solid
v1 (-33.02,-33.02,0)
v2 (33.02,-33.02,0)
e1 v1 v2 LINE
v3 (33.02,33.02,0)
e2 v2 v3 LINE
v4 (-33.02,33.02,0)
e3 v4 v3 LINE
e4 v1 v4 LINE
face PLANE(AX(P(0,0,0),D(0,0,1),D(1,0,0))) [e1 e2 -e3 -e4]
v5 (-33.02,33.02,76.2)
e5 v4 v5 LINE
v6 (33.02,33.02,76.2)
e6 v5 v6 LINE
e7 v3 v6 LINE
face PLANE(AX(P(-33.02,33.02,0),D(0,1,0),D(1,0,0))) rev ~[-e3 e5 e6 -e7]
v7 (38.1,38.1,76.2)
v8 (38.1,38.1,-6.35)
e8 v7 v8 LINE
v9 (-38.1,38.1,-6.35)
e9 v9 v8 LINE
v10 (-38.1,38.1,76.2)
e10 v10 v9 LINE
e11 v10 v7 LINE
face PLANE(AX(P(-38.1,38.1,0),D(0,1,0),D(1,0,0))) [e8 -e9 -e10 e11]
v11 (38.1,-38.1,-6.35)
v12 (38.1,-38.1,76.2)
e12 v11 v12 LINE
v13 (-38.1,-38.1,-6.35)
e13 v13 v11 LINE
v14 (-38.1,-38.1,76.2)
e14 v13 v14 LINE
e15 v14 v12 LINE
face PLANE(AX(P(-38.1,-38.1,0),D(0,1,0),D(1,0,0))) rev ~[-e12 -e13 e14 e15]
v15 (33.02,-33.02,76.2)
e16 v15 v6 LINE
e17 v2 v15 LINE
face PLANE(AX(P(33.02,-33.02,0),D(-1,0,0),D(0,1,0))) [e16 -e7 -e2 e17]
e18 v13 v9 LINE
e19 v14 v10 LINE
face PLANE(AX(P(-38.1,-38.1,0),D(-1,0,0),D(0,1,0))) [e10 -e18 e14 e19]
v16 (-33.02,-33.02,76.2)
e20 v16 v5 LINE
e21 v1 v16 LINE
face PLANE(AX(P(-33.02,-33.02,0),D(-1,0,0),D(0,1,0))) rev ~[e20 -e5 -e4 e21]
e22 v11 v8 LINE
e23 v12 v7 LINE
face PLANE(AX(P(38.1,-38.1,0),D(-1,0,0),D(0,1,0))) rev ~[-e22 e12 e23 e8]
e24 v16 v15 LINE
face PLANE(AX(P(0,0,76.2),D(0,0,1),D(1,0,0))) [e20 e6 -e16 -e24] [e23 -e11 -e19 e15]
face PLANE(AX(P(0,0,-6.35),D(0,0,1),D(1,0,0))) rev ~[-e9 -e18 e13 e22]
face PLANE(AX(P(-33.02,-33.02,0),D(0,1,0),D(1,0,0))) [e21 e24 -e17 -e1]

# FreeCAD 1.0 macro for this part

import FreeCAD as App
import Part
import Sketcher

V = App.Vector
Q = App.Units.Quantity

doc = App.newDocument("Part")
body = doc.addObject("PartDesign::Body", "Body")

sketch1 = body.newObject("Sketcher::SketchObject", "Sketch")
sketch1.AttachmentSupport = (doc.getObject("XY_Plane"), [""])
sketch1.MapMode = "FlatFace"
sketch1.addGeometry(Part.LineSegment(V(-38, 38, 0), V(-38, -38, 0)), False)
sketch1.addGeometry(Part.LineSegment(V(-38, -38, 0), V(38, -38, 0)), False)
sketch1.addGeometry(Part.LineSegment(V(38, -38, 0), V(38, 38, 0)), False)
sketch1.addGeometry(Part.LineSegment(V(38, 38, 0), V(-38, 38, 0)), False)
sketch1.addConstraint(Sketcher.Constraint("Coincident", 0, 2, 1, 1))
sketch1.addConstraint(Sketcher.Constraint("Coincident", 1, 2, 2, 1))
sketch1.addConstraint(Sketcher.Constraint("Coincident", 2, 2, 3, 1))
sketch1.addConstraint(Sketcher.Constraint("Coincident", 3, 2, 0, 1))
sketch1.addConstraint(Sketcher.Constraint("Vertical", 0))
sketch1.addConstraint(Sketcher.Constraint("Horizontal", 1))
sketch1.addConstraint(Sketcher.Constraint("Vertical", 2))
sketch1.addConstraint(Sketcher.Constraint("Horizontal", 3))
sketch1.addConstraint(Sketcher.Constraint("Symmetric", 0, 2, 2, 2, -1, 1))
sketch1.addConstraint(Sketcher.Constraint("Equal", 3, 0))
sketch1.addConstraint(Sketcher.Constraint("DistanceX", 1, 1, 1, 2, Q("3 in")))
pad1 = body.newObject("PartDesign::Pad", "Pad")
pad1.Profile = sketch1
pad1.Length = Q("0.25 in")
pad1.Reversed = True

sketch2 = body.newObject("Sketcher::SketchObject", "Sketch001")
sketch2.AttachmentSupport = (doc.getObject("XY_Plane"), [""])
sketch2.MapMode = "FlatFace"
sketch2.addGeometry(Part.LineSegment(V(-38, 38, 0), V(-38, -38, 0)), False)
sketch2.addGeometry(Part.LineSegment(V(-38, -38, 0), V(38, -38, 0)), False)
sketch2.addGeometry(Part.LineSegment(V(38, -38, 0), V(38, 38, 0)), False)
sketch2.addGeometry(Part.LineSegment(V(38, 38, 0), V(-38, 38, 0)), False)
sketch2.addGeometry(Part.LineSegment(V(33, -33, 0), V(-33, -33, 0)), False)
sketch2.addGeometry(Part.LineSegment(V(-33, -33, 0), V(-33, 33, 0)), False)
sketch2.addGeometry(Part.LineSegment(V(-33, 33, 0), V(33, 33, 0)), False)
sketch2.addGeometry(Part.LineSegment(V(33, 33, 0), V(33, -33, 0)), False)
sketch2.addConstraint(Sketcher.Constraint("Coincident", 0, 2, 1, 1))
sketch2.addConstraint(Sketcher.Constraint("Coincident", 1, 2, 2, 1))
sketch2.addConstraint(Sketcher.Constraint("Coincident", 2, 2, 3, 1))
sketch2.addConstraint(Sketcher.Constraint("Coincident", 3, 2, 0, 1))
sketch2.addConstraint(Sketcher.Constraint("Coincident", 4, 2, 5, 1))
sketch2.addConstraint(Sketcher.Constraint("Coincident", 5, 2, 6, 1))
sketch2.addConstraint(Sketcher.Constraint("Coincident", 6, 2, 7, 1))
sketch2.addConstraint(Sketcher.Constraint("Coincident", 7, 2, 4, 1))
sketch2.addConstraint(Sketcher.Constraint("Vertical", 0))
sketch2.addConstraint(Sketcher.Constraint("Horizontal", 1))
sketch2.addConstraint(Sketcher.Constraint("Vertical", 2))
sketch2.addConstraint(Sketcher.Constraint("Horizontal", 3))
sketch2.addConstraint(Sketcher.Constraint("Horizontal", 4))
sketch2.addConstraint(Sketcher.Constraint("Vertical", 5))
sketch2.addConstraint(Sketcher.Constraint("Horizontal", 6))
sketch2.addConstraint(Sketcher.Constraint("Vertical", 7))
sketch2.addConstraint(Sketcher.Constraint("Symmetric", 0, 2, 2, 2, -1, 1))
sketch2.addConstraint(Sketcher.Constraint("Symmetric", 4, 2, 6, 2, -1, 1))
sketch2.addConstraint(Sketcher.Constraint("Equal", 3, 0))
sketch2.addConstraint(Sketcher.Constraint("Equal", 6, 5))
sketch2.addConstraint(Sketcher.Constraint("DistanceX", 1, 1, 1, 2, Q("3 in")))
sketch2.addConstraint(Sketcher.Constraint("DistanceX", 4, 2, 4, 1, Q("2.6 in")))
pad2 = body.newObject("PartDesign::Pad", "Pad001")
pad2.Profile = sketch2
pad2.Length = Q("3 in")

doc.recompute()
